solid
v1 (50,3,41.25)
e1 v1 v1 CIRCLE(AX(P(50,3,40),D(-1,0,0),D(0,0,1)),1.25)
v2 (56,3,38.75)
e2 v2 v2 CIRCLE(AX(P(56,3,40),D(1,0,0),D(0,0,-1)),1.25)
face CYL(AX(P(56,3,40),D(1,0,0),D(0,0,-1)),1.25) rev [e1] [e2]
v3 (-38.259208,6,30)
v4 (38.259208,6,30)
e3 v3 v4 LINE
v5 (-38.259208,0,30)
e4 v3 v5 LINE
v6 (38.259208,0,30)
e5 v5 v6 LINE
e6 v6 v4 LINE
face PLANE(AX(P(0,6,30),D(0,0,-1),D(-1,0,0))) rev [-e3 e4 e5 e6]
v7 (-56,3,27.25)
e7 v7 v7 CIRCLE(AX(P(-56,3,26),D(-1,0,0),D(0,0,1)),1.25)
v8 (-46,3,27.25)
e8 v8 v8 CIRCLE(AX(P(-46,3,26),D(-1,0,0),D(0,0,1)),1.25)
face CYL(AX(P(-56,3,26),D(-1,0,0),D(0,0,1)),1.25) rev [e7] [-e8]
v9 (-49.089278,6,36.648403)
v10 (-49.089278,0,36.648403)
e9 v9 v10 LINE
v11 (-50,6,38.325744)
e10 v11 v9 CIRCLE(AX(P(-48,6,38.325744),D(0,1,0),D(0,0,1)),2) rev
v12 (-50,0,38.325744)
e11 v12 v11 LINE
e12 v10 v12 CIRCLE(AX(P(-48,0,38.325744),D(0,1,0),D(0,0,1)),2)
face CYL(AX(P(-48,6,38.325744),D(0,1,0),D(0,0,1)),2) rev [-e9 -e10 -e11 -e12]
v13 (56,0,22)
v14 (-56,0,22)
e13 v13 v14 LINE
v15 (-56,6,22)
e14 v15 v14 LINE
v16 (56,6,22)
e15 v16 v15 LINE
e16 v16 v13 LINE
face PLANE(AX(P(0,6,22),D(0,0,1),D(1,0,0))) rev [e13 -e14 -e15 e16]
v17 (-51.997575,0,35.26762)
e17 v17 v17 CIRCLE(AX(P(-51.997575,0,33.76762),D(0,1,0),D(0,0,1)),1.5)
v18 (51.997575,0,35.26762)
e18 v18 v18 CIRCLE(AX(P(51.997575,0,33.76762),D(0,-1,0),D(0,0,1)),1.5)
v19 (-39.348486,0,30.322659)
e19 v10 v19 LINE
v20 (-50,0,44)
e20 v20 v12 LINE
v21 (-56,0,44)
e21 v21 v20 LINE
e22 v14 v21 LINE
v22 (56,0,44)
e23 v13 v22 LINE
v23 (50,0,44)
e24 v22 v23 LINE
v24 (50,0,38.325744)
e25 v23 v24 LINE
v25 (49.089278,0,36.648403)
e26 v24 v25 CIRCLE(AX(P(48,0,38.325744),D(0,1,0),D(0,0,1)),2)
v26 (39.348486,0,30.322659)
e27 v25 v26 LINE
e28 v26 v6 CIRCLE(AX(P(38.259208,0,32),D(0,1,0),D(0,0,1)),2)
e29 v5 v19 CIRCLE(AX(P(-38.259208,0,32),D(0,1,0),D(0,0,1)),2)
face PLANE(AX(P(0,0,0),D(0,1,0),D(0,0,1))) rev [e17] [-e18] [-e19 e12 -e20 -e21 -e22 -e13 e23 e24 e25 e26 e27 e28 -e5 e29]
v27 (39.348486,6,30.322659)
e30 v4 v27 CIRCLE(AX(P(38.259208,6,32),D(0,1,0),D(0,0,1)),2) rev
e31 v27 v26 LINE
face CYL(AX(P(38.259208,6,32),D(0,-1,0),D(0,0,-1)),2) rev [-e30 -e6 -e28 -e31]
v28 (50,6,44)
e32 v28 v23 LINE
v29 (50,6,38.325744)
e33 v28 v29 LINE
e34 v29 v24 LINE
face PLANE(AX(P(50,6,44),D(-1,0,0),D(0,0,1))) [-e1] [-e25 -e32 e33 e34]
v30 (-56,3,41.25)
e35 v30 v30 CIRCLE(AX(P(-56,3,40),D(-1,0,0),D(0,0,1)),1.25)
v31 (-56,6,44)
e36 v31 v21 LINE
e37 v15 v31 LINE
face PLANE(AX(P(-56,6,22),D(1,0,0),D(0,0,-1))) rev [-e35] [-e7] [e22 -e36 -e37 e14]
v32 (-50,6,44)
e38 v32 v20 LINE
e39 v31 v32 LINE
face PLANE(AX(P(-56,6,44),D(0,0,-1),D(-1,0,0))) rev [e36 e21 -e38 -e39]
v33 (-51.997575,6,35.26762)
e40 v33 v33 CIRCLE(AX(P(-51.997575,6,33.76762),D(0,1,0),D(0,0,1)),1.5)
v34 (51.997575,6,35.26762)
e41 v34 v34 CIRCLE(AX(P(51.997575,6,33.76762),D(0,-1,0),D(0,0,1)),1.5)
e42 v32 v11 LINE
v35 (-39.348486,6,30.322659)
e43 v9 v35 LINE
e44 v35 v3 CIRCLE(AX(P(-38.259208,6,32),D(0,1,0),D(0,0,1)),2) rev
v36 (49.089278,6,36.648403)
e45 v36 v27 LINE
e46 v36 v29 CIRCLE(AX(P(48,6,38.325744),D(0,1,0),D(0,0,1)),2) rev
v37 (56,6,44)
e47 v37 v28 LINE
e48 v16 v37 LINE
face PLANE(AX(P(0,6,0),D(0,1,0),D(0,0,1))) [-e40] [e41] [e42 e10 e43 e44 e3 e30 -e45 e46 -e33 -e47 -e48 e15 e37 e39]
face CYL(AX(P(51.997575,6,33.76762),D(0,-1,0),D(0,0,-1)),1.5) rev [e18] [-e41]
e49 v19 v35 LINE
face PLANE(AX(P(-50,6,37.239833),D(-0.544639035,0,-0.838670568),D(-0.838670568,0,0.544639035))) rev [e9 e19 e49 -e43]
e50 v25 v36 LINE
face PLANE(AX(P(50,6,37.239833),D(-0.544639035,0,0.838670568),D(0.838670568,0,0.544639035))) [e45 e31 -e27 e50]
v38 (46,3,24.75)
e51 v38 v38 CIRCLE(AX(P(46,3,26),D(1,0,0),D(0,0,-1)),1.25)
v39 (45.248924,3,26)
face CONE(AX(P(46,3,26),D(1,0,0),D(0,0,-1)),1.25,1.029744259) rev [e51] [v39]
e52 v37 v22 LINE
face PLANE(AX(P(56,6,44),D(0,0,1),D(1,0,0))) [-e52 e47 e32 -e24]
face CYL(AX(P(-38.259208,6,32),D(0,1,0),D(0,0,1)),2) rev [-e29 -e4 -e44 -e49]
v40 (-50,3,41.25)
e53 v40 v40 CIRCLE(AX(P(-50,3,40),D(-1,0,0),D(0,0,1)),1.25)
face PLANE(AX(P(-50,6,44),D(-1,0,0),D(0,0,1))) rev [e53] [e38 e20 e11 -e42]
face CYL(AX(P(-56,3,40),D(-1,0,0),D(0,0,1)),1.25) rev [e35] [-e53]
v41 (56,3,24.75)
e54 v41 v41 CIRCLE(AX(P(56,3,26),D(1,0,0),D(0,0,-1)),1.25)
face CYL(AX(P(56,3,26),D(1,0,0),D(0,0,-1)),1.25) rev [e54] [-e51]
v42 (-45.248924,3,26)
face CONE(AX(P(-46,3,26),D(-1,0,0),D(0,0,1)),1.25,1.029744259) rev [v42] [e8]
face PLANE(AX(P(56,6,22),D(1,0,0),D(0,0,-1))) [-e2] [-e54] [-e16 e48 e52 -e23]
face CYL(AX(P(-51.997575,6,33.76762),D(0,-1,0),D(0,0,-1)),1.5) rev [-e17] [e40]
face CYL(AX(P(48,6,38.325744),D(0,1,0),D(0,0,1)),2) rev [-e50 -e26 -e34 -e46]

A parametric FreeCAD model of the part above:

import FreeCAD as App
import Part
import Sketcher

V = App.Vector
Q = App.Units.Quantity


def edges_at(feature, points):
    """Names of the edges that pass closest to the given points."""
    edges = feature.Shape.Edges
    near = lambda p: min(range(len(edges)), key=lambda i: edges[i].distToShape(Part.Vertex(*p))[0])
    return sorted({f"Edge{near(p) + 1}" for p in points})


def add_polygon(sketch, points):
    """Adds a closed chain of lines whose ends are joined by coincident constraints."""
    first, n = sketch.GeometryCount, len(points)
    for a, b in zip(points, points[1:] + points[:1]):
        sketch.addGeometry(Part.LineSegment(App.Vector(*a, 0), App.Vector(*b, 0)), False)
    for i in range(n):
        sketch.addConstraint(Sketcher.Constraint("Coincident", first + i, 2, first + (i + 1) % n, 1))

doc = App.newDocument("Part")
body = doc.addObject("PartDesign::Body", "Body")

sketch1 = body.newObject("Sketcher::SketchObject", "Sketch")
sketch1.AttachmentSupport = (doc.getObject("XZ_Plane"), [""])
sketch1.MapMode = "FlatFace"
add_polygon(sketch1, [(0, 22), (-56, 22), (-56, 44), (-50, 44), (-50, 37.2), (-38.9, 30), (0, 30)])
sketch1.addGeometry(Part.Circle(V(-52, 33.8, 0), V(0, 0, 1), 1.5), False)
sketch1.addConstraint(Sketcher.Constraint("Horizontal", 0))
sketch1.addConstraint(Sketcher.Constraint("Vertical", 1))
sketch1.addConstraint(Sketcher.Constraint("Horizontal", 2))
sketch1.addConstraint(Sketcher.Constraint("Vertical", 3))
sketch1.addConstraint(Sketcher.Constraint("Horizontal", 5))
sketch1.addConstraint(Sketcher.Constraint("Vertical", 6))
sketch1.addConstraint(Sketcher.Constraint("PointOnObject", 5, 2, -2))
sketch1.addConstraint(Sketcher.Constraint("Diameter", 7, Q("3 mm")))
sketch1.addConstraint(Sketcher.Constraint("DistanceX", 0, 2, 0, 1, Q("56 mm")))
sketch1.addConstraint(Sketcher.Constraint("DistanceX", 2, 1, 2, 2, Q("6 mm")))
sketch1.addConstraint(Sketcher.Constraint("DistanceY", 1, 1, 1, 2, Q("22 mm")))
sketch1.addConstraint(Sketcher.Constraint("DistanceY", 6, 2, 6, 1, Q("8 mm")))
sketch1.addConstraint(Sketcher.Constraint("Angle", 4, Q("-33 deg")))
sketch1.addConstraint(Sketcher.Constraint("DistanceY", -1, 1, 0, 2, Q("22 mm")))
sketch1.addConstraint(Sketcher.Constraint("Distance", 4, Q("13.292901 mm")))
sketch1.addConstraint(Sketcher.Constraint("DistanceY", -1, 1, 7, 3, Q("33.76762 mm")))
sketch1.addConstraint(Sketcher.Constraint("DistanceX", 7, 3, 4, 2, Q("13.14594 mm")))
pad1 = body.newObject("PartDesign::Pad", "Pad")
pad1.Profile = sketch1
pad1.Length = 6
pad1.Reversed = True
doc.recompute()

fillet = body.newObject("PartDesign::Fillet", "Fillet")
fillet.Base = (pad1, edges_at(pad1, [(-38.852, 3, 30), (-50, 3, 37.24)]))
fillet.Radius = 2

sketch2 = body.newObject("Sketcher::SketchObject", "Sketch001")
sketch2.AttachmentSupport = (doc.getObject("XZ_Plane"), [""])
sketch2.MapMode = "FlatFace"
sketch2.AttachmentOffset = App.Placement(V(0, 0, -3), App.Rotation())
add_polygon(sketch2, [(-45.2, 26), (-56, 26), (-56, 27.2), (-46, 27.2)])
sketch2.addGeometry(Part.LineSegment(V(-56, 26, 0), V(-45.2, 26, 0)), True)
sketch2.addConstraint(Sketcher.Constraint("Horizontal", 0))
sketch2.addConstraint(Sketcher.Constraint("Vertical", 1))
sketch2.addConstraint(Sketcher.Constraint("Horizontal", 2))
sketch2.addConstraint(Sketcher.Constraint("Horizontal", 4))
sketch2.addConstraint(Sketcher.Constraint("Coincident", 4, 1, 0, 2))
sketch2.addConstraint(Sketcher.Constraint("Equal", 0, 4))
sketch2.addConstraint(Sketcher.Constraint("DistanceX", 2, 1, 2, 2, Q("10 mm")))
sketch2.addConstraint(Sketcher.Constraint("Angle", 3, Q("-59 deg")))
sketch2.addConstraint(Sketcher.Constraint("DistanceX", 0, 2, -1, 1, Q("56 mm")))
sketch2.addConstraint(Sketcher.Constraint("DistanceY", -1, 1, 0, 2, Q("26 mm")))
sketch2.addConstraint(Sketcher.Constraint("DistanceY", 1, 1, 1, 2, Q("1.25 mm")))
groove = body.newObject("PartDesign::Groove", "Groove")
groove.Profile = sketch2
groove.ReferenceAxis = (sketch2, ["Axis0"])
groove.Angle = 360
doc.recompute()

linearpattern = body.newObject("PartDesign::LinearPattern", "LinearPattern")
linearpattern.Originals = [groove]
linearpattern.Direction = (doc.getObject("Z_Axis"), [""])
linearpattern.Mode = "offset"
linearpattern.Offset = 14
linearpattern.Occurrences = 2
body.Tip = linearpattern
doc.recompute()

mirrored = body.newObject("PartDesign::Mirrored", "Mirrored")
mirrored.Originals = [pad1, groove]
mirrored.MirrorPlane = (doc.getObject("YZ_Plane"), [""])
body.Tip = mirrored

sketch3 = body.newObject("Sketcher::SketchObject", "Sketch002")
sketch3.AttachmentSupport = (doc.getObject("XZ_Plane"), [""])
sketch3.MapMode = "FlatFace"
sketch3.AttachmentOffset = App.Placement(V(0, 0, -3), App.Rotation())
add_polygon(sketch3, [(56, 40), (45.2, 40), (46, 41.2), (56, 41.2)])
sketch3.addGeometry(Part.LineSegment(V(45.2, 40, 0), V(56, 40, 0)), True)
sketch3.addConstraint(Sketcher.Constraint("Horizontal", 0))
sketch3.addConstraint(Sketcher.Constraint("Horizontal", 2))
sketch3.addConstraint(Sketcher.Constraint("Vertical", 3))
sketch3.addConstraint(Sketcher.Constraint("Horizontal", 4))
sketch3.addConstraint(Sketcher.Constraint("Coincident", 4, 1, 0, 2))
sketch3.addConstraint(Sketcher.Constraint("Vertical", 2, 2, 4, 2))
sketch3.addConstraint(Sketcher.Constraint("DistanceX", 2, 1, 2, 2, Q("10 mm")))
sketch3.addConstraint(Sketcher.Constraint("Angle", 1, Q("59 deg")))
sketch3.addConstraint(Sketcher.Constraint("DistanceY", -1, 1, 0, 2, Q("40 mm")))
sketch3.addConstraint(Sketcher.Constraint("DistanceX", -1, 1, 1, 2, Q("46 mm")))
sketch3.addConstraint(Sketcher.Constraint("DistanceY", 3, 2, 3, 1, Q("1.25 mm")))
groove2 = body.newObject("PartDesign::Groove", "Groove001")
groove2.Profile = sketch3
groove2.ReferenceAxis = (sketch3, ["Axis0"])
groove2.Angle = 360
doc.recompute()

fillet2 = body.newObject("PartDesign::Fillet", "Fillet001")
fillet2.Base = (groove2, edges_at(groove2, [(38.852, 3, 30), (50, 3, 37.24)]))
fillet2.Radius = 2

doc.recompute()
